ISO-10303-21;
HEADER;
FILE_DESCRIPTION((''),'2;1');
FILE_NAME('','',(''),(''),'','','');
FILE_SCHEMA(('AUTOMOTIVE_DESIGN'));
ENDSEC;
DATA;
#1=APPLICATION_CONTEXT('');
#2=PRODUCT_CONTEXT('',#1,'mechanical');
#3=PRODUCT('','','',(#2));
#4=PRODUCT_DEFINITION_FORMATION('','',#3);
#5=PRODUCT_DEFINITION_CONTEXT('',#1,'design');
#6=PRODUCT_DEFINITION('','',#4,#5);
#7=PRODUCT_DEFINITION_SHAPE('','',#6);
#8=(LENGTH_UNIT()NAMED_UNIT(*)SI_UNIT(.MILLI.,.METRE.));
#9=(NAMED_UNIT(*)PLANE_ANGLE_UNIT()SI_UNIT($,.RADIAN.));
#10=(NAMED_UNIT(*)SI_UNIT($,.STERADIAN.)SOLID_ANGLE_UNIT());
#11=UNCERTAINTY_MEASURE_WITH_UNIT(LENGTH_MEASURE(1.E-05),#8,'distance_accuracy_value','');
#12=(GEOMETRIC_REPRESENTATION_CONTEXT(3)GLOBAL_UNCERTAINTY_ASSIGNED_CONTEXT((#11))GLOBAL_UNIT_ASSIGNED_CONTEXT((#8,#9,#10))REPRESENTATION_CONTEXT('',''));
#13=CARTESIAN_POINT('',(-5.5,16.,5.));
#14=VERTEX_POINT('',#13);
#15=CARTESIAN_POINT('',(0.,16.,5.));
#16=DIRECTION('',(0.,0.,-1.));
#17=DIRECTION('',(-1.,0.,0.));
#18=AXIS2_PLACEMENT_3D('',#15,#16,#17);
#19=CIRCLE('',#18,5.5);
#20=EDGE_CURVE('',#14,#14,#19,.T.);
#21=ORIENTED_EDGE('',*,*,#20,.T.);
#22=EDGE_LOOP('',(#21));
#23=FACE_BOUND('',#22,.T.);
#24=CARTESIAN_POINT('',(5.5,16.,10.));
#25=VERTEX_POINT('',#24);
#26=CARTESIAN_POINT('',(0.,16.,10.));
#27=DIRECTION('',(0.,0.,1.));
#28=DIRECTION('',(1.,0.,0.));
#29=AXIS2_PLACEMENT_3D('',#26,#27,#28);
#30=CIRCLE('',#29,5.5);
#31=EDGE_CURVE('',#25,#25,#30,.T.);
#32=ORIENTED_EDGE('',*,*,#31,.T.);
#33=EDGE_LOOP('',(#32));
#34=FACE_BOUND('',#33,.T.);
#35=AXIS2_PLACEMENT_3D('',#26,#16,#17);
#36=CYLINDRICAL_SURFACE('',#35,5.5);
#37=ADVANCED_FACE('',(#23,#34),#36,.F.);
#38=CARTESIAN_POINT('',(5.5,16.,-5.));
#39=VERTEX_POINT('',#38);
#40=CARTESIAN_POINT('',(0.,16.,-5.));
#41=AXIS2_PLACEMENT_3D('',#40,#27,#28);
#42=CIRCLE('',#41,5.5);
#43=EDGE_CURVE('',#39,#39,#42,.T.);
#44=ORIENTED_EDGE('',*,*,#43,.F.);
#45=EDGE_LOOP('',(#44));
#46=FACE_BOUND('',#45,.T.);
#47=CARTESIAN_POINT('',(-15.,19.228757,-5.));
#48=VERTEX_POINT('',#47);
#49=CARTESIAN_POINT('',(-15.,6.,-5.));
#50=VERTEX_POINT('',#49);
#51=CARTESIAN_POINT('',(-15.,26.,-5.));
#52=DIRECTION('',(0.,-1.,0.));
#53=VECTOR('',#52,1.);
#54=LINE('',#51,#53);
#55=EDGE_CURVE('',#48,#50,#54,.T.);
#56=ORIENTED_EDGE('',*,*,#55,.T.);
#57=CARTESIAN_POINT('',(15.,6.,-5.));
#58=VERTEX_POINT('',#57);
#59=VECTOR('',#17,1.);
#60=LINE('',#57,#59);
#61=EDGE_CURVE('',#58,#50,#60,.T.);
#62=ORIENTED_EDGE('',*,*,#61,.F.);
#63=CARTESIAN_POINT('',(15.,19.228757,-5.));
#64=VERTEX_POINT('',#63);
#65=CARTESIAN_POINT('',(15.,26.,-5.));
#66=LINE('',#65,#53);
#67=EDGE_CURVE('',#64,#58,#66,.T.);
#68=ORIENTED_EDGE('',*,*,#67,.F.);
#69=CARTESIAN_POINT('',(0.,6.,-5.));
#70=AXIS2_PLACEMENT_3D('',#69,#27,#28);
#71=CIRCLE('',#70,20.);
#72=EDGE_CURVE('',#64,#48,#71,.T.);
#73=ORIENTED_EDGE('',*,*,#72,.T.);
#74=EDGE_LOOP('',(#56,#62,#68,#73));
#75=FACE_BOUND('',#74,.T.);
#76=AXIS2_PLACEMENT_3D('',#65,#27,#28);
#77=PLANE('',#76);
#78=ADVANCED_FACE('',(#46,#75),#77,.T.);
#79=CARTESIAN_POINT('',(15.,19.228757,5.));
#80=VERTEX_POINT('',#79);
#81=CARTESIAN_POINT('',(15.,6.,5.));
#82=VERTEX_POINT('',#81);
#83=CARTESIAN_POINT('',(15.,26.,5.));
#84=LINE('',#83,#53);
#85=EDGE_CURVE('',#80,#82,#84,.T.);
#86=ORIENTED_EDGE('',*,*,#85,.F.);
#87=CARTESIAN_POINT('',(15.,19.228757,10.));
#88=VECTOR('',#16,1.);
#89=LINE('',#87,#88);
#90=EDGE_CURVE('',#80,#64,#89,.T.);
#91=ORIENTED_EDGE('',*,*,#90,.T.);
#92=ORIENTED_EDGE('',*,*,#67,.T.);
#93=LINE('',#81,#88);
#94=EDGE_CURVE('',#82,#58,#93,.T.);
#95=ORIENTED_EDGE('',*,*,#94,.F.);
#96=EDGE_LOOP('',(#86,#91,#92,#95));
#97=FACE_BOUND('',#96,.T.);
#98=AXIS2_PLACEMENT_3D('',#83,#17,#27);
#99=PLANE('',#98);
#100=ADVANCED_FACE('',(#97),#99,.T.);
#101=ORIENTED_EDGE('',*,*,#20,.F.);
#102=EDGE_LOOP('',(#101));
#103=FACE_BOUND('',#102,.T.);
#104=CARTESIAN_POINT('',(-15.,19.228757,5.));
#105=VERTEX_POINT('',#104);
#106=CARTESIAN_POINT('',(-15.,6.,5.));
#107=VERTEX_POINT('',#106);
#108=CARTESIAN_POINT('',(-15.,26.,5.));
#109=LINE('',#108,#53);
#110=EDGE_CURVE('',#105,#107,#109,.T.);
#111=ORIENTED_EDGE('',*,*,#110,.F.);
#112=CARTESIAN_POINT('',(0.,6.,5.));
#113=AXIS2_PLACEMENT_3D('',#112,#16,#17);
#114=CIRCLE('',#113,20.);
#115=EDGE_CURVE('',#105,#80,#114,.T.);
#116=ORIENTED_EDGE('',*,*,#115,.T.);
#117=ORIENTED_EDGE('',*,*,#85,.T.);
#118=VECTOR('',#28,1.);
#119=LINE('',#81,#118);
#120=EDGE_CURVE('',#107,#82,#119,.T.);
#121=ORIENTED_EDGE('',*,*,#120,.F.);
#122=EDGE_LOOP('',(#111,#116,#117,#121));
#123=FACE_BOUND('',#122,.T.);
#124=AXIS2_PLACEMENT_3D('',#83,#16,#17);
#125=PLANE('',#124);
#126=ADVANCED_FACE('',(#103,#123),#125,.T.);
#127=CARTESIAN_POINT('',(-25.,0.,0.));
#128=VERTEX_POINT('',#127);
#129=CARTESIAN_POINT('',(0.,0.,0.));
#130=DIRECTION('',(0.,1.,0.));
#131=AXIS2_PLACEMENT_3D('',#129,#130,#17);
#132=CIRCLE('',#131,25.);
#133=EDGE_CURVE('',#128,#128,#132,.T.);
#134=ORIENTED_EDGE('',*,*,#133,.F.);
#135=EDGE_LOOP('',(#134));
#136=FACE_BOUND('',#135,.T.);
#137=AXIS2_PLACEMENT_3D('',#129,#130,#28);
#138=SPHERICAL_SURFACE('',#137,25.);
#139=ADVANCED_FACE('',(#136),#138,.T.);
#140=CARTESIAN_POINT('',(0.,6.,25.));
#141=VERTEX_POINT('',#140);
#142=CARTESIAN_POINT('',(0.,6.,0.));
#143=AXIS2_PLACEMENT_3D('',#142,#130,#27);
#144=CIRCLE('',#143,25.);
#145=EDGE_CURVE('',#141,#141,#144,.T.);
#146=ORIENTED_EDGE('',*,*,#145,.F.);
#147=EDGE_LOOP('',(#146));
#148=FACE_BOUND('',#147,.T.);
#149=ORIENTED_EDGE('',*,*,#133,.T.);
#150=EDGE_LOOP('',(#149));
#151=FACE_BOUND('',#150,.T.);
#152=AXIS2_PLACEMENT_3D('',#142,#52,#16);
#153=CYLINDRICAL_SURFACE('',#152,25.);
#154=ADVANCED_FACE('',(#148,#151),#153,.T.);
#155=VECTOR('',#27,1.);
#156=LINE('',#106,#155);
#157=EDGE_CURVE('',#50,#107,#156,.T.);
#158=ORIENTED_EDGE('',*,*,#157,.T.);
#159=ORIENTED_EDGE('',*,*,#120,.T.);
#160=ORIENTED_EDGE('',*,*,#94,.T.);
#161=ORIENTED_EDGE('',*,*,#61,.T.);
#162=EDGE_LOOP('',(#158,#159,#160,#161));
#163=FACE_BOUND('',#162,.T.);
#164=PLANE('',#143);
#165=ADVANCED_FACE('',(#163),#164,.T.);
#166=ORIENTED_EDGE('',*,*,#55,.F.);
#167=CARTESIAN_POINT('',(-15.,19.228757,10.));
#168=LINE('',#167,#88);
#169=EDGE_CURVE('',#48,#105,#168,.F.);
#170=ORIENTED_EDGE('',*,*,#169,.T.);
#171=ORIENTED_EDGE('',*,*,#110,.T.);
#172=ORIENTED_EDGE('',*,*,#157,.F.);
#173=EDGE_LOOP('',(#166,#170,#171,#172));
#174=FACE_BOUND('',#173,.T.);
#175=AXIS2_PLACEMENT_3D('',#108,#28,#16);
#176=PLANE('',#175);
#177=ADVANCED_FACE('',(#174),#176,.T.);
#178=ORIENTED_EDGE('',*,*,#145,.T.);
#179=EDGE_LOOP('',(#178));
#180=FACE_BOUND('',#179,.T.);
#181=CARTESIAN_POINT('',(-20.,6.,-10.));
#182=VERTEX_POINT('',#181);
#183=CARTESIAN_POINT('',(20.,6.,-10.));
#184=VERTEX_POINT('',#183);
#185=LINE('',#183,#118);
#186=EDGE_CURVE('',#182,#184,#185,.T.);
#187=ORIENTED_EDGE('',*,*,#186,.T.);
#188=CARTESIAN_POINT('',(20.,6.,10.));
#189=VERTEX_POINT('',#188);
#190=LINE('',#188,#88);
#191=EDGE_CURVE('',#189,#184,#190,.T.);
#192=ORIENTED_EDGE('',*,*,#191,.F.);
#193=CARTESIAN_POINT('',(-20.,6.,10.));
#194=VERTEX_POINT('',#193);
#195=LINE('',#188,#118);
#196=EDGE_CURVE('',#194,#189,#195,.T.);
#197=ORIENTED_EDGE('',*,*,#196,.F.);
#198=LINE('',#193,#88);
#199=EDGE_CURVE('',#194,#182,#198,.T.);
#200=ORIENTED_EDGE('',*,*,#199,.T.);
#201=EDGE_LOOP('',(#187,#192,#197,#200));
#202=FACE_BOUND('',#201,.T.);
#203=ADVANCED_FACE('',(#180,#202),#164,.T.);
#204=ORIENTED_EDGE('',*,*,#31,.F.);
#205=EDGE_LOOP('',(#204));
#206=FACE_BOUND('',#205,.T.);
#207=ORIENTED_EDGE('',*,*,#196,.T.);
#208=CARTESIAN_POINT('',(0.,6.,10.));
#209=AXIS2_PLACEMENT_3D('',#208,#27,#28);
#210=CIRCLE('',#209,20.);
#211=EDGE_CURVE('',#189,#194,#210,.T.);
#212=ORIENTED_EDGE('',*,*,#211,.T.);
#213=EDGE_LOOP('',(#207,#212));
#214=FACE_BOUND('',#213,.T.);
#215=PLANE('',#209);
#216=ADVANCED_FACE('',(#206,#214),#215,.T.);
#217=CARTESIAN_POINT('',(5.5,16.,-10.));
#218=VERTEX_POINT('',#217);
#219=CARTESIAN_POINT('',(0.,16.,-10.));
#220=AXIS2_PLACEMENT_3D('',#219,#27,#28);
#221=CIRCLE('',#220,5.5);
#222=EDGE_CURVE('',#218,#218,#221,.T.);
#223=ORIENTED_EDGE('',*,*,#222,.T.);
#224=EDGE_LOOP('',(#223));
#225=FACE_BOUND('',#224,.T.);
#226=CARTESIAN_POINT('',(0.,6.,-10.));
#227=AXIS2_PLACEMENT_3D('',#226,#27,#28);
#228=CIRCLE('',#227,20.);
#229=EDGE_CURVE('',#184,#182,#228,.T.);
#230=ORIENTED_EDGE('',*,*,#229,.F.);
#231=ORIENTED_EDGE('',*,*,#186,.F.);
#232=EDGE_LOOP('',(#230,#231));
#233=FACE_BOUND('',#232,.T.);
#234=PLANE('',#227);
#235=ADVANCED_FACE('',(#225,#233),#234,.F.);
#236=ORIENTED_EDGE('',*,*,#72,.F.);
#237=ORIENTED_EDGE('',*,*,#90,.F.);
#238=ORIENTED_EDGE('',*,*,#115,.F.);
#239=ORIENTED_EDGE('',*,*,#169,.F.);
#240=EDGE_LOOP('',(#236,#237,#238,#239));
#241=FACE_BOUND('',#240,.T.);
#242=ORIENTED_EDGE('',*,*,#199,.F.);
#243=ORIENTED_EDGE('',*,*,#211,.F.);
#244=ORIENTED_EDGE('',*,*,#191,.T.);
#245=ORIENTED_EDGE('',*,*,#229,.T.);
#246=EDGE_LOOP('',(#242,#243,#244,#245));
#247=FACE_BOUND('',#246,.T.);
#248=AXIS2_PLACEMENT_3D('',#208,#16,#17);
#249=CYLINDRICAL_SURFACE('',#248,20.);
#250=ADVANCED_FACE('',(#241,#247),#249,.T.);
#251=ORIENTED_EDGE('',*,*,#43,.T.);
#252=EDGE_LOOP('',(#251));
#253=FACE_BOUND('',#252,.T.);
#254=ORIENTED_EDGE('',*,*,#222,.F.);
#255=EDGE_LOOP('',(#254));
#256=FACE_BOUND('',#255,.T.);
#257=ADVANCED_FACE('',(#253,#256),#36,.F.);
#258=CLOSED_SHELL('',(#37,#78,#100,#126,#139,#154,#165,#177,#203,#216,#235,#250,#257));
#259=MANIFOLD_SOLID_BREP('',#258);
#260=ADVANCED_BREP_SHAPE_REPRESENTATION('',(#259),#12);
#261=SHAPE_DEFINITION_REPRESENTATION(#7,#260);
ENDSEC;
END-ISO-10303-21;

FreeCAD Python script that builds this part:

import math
import FreeCAD as App
import Part
import Sketcher
from FreeCAD import Vector

doc = App.newDocument("Part")
params = doc.addObject("Spreadsheet::Sheet", "Params")
for row, (alias, value) in enumerate([
    ("sketch1_diameter", "50 mm"),
    ("pad1_length", "6 mm"),
    ("sketch2_diameter", "11 mm"),
    ("sketch2_radius", "20 mm"),
    ("pad2_length", "20 mm"),
    ("sketch3_width", "30 mm"),
    ("sketch3_height", "10 mm"),
    ("sketch4_radius", "25 mm"),
    ("revolution_angle", "360 deg"),
], start=1):
    params.set(f"A{row}", alias)
    params.set(f"B{row}", "=" + value)
    params.setAlias(f"B{row}", alias)

body = doc.addObject("PartDesign::Body", "Body")

sketch1 = body.newObject("Sketcher::SketchObject", "Sketch")
sketch1.AttachmentSupport = (doc.getObject("XZ_Plane"), [""])
sketch1.MapMode = "FlatFace"
sketch1.addGeometry(Part.Circle(Vector(0, 0, 0), Vector(0, 0, 1), 25), False)
sketch1.addConstraint([
    Sketcher.Constraint("Coincident", 0, 3, -1, 1),
    Sketcher.Constraint("Diameter", 0, 50.0),
])
sketch1.setExpression("Constraints[1]", "Params.sketch1_diameter")
pad1 = body.newObject("PartDesign::Pad", "Pad")
pad1.Profile = sketch1
pad1.setExpression("Length", "Params.pad1_length")
pad1.Reversed = True

sketch2 = body.newObject("Sketcher::SketchObject", "Sketch001")
sketch2.AttachmentSupport = (doc.getObject("XY_Plane"), [""])
sketch2.MapMode = "FlatFace"
sketch2.addGeometry([
    Part.LineSegment(Vector(-20, 6, 0), Vector(20, 6, 0)),
    Part.ArcOfCircle(Part.Circle(Vector(0, 6, 0), Vector(0, 0, 1), 20), math.radians(0), math.radians(180)),
    Part.Circle(Vector(0, 16, 0), Vector(0, 0, 1), 6),
], False)
sketch2.addConstraint([
    Sketcher.Constraint("Coincident", 0, 1, 1, 2),
    Sketcher.Constraint("Coincident", 1, 1, 0, 2),
    Sketcher.Constraint("Horizontal", 0),
    Sketcher.Constraint("PointOnObject", 1, 3, -2),
    Sketcher.Constraint("PointOnObject", 2, 3, -2),
    Sketcher.Constraint("Horizontal", 1, 3, 0, 1),
    Sketcher.Constraint("Diameter", 2, 11.0),
    Sketcher.Constraint("Radius", 1, 20.0),
    Sketcher.Constraint("DistanceY", -1, 1, 1, 3, 6.0),
    Sketcher.Constraint("DistanceY", -1, 1, 2, 3, 16.0),
])
sketch2.setExpression("Constraints[6]", "Params.sketch2_diameter")
sketch2.setExpression("Constraints[7]", "Params.sketch2_radius")
pad2 = body.newObject("PartDesign::Pad", "Pad001")
pad2.Profile = sketch2
pad2.setExpression("Length", "Params.pad2_length")
pad2.Midplane = True

sketch3 = body.newObject("Sketcher::SketchObject", "Sketch002")
sketch3.AttachmentSupport = (doc.getObject("XZ_Plane"), [""])
sketch3.MapMode = "FlatFace"
sketch3.AttachmentOffset = App.Placement(Vector(0, 0, -6), App.Rotation())
sketch3.addGeometry([
    Part.LineSegment(Vector(-15, -5, 0), Vector(-15, 5, 0)),
    Part.LineSegment(Vector(-15, 5, 0), Vector(15, 5, 0)),
    Part.LineSegment(Vector(15, 5, 0), Vector(15, -5, 0)),
    Part.LineSegment(Vector(15, -5, 0), Vector(-15, -5, 0)),
], False)
sketch3.addConstraint([
    Sketcher.Constraint("Coincident", 0, 2, 1, 1),
    Sketcher.Constraint("Coincident", 1, 2, 2, 1),
    Sketcher.Constraint("Coincident", 2, 2, 3, 1),
    Sketcher.Constraint("Coincident", 3, 2, 0, 1),
    Sketcher.Constraint("Vertical", 0),
    Sketcher.Constraint("Horizontal", 1),
    Sketcher.Constraint("Vertical", 2),
    Sketcher.Constraint("Horizontal", 3),
    Sketcher.Constraint("Symmetric", 0, 2, 2, 2, -1, 1),
    Sketcher.Constraint("DistanceX", 1, 1, 1, 2, 30.0),
    Sketcher.Constraint("DistanceY", 0, 1, 0, 2, 10.0),
])
sketch3.setExpression("Constraints[9]", "Params.sketch3_width")
sketch3.setExpression("Constraints[10]", "Params.sketch3_height")
pocket1 = body.newObject("PartDesign::Pocket", "Pocket")
pocket1.Profile = sketch3
pocket1.Type = "ThroughAll"

sketch4 = body.newObject("Sketcher::SketchObject", "Sketch003")
sketch4.AttachmentSupport = (doc.getObject("XY_Plane"), [""])
sketch4.MapMode = "FlatFace"
sketch4.addGeometry([
    Part.LineSegment(Vector(0, 0, 0), Vector(0, -25, 0)),
    Part.ArcOfCircle(Part.Circle(Vector(0, 0, 0), Vector(0, 0, 1), 25), math.radians(-90), math.radians(0)),
    Part.LineSegment(Vector(25, 0, 0), Vector(0, 0, 0)),
], False)
sketch4.addConstraint([
    Sketcher.Constraint("Coincident", 0, 2, 1, 1),
    Sketcher.Constraint("Coincident", 1, 2, 2, 1),
    Sketcher.Constraint("Coincident", 2, 2, 0, 1),
    Sketcher.Constraint("Vertical", 0),
    Sketcher.Constraint("Horizontal", 2),
    Sketcher.Constraint("Coincident", 1, 3, -1, 1),
    Sketcher.Constraint("Coincident", 2, 2, -1, 1),
    Sketcher.Constraint("Radius", 1, 25.0),
])
sketch4.setExpression("Constraints[7]", "Params.sketch4_radius")
revolution = body.newObject("PartDesign::Revolution", "Revolution")
revolution.Profile = sketch4
revolution.ReferenceAxis = (sketch4, ["V_Axis"])
revolution.setExpression("Angle", "Params.revolution_angle")

doc.recompute()
